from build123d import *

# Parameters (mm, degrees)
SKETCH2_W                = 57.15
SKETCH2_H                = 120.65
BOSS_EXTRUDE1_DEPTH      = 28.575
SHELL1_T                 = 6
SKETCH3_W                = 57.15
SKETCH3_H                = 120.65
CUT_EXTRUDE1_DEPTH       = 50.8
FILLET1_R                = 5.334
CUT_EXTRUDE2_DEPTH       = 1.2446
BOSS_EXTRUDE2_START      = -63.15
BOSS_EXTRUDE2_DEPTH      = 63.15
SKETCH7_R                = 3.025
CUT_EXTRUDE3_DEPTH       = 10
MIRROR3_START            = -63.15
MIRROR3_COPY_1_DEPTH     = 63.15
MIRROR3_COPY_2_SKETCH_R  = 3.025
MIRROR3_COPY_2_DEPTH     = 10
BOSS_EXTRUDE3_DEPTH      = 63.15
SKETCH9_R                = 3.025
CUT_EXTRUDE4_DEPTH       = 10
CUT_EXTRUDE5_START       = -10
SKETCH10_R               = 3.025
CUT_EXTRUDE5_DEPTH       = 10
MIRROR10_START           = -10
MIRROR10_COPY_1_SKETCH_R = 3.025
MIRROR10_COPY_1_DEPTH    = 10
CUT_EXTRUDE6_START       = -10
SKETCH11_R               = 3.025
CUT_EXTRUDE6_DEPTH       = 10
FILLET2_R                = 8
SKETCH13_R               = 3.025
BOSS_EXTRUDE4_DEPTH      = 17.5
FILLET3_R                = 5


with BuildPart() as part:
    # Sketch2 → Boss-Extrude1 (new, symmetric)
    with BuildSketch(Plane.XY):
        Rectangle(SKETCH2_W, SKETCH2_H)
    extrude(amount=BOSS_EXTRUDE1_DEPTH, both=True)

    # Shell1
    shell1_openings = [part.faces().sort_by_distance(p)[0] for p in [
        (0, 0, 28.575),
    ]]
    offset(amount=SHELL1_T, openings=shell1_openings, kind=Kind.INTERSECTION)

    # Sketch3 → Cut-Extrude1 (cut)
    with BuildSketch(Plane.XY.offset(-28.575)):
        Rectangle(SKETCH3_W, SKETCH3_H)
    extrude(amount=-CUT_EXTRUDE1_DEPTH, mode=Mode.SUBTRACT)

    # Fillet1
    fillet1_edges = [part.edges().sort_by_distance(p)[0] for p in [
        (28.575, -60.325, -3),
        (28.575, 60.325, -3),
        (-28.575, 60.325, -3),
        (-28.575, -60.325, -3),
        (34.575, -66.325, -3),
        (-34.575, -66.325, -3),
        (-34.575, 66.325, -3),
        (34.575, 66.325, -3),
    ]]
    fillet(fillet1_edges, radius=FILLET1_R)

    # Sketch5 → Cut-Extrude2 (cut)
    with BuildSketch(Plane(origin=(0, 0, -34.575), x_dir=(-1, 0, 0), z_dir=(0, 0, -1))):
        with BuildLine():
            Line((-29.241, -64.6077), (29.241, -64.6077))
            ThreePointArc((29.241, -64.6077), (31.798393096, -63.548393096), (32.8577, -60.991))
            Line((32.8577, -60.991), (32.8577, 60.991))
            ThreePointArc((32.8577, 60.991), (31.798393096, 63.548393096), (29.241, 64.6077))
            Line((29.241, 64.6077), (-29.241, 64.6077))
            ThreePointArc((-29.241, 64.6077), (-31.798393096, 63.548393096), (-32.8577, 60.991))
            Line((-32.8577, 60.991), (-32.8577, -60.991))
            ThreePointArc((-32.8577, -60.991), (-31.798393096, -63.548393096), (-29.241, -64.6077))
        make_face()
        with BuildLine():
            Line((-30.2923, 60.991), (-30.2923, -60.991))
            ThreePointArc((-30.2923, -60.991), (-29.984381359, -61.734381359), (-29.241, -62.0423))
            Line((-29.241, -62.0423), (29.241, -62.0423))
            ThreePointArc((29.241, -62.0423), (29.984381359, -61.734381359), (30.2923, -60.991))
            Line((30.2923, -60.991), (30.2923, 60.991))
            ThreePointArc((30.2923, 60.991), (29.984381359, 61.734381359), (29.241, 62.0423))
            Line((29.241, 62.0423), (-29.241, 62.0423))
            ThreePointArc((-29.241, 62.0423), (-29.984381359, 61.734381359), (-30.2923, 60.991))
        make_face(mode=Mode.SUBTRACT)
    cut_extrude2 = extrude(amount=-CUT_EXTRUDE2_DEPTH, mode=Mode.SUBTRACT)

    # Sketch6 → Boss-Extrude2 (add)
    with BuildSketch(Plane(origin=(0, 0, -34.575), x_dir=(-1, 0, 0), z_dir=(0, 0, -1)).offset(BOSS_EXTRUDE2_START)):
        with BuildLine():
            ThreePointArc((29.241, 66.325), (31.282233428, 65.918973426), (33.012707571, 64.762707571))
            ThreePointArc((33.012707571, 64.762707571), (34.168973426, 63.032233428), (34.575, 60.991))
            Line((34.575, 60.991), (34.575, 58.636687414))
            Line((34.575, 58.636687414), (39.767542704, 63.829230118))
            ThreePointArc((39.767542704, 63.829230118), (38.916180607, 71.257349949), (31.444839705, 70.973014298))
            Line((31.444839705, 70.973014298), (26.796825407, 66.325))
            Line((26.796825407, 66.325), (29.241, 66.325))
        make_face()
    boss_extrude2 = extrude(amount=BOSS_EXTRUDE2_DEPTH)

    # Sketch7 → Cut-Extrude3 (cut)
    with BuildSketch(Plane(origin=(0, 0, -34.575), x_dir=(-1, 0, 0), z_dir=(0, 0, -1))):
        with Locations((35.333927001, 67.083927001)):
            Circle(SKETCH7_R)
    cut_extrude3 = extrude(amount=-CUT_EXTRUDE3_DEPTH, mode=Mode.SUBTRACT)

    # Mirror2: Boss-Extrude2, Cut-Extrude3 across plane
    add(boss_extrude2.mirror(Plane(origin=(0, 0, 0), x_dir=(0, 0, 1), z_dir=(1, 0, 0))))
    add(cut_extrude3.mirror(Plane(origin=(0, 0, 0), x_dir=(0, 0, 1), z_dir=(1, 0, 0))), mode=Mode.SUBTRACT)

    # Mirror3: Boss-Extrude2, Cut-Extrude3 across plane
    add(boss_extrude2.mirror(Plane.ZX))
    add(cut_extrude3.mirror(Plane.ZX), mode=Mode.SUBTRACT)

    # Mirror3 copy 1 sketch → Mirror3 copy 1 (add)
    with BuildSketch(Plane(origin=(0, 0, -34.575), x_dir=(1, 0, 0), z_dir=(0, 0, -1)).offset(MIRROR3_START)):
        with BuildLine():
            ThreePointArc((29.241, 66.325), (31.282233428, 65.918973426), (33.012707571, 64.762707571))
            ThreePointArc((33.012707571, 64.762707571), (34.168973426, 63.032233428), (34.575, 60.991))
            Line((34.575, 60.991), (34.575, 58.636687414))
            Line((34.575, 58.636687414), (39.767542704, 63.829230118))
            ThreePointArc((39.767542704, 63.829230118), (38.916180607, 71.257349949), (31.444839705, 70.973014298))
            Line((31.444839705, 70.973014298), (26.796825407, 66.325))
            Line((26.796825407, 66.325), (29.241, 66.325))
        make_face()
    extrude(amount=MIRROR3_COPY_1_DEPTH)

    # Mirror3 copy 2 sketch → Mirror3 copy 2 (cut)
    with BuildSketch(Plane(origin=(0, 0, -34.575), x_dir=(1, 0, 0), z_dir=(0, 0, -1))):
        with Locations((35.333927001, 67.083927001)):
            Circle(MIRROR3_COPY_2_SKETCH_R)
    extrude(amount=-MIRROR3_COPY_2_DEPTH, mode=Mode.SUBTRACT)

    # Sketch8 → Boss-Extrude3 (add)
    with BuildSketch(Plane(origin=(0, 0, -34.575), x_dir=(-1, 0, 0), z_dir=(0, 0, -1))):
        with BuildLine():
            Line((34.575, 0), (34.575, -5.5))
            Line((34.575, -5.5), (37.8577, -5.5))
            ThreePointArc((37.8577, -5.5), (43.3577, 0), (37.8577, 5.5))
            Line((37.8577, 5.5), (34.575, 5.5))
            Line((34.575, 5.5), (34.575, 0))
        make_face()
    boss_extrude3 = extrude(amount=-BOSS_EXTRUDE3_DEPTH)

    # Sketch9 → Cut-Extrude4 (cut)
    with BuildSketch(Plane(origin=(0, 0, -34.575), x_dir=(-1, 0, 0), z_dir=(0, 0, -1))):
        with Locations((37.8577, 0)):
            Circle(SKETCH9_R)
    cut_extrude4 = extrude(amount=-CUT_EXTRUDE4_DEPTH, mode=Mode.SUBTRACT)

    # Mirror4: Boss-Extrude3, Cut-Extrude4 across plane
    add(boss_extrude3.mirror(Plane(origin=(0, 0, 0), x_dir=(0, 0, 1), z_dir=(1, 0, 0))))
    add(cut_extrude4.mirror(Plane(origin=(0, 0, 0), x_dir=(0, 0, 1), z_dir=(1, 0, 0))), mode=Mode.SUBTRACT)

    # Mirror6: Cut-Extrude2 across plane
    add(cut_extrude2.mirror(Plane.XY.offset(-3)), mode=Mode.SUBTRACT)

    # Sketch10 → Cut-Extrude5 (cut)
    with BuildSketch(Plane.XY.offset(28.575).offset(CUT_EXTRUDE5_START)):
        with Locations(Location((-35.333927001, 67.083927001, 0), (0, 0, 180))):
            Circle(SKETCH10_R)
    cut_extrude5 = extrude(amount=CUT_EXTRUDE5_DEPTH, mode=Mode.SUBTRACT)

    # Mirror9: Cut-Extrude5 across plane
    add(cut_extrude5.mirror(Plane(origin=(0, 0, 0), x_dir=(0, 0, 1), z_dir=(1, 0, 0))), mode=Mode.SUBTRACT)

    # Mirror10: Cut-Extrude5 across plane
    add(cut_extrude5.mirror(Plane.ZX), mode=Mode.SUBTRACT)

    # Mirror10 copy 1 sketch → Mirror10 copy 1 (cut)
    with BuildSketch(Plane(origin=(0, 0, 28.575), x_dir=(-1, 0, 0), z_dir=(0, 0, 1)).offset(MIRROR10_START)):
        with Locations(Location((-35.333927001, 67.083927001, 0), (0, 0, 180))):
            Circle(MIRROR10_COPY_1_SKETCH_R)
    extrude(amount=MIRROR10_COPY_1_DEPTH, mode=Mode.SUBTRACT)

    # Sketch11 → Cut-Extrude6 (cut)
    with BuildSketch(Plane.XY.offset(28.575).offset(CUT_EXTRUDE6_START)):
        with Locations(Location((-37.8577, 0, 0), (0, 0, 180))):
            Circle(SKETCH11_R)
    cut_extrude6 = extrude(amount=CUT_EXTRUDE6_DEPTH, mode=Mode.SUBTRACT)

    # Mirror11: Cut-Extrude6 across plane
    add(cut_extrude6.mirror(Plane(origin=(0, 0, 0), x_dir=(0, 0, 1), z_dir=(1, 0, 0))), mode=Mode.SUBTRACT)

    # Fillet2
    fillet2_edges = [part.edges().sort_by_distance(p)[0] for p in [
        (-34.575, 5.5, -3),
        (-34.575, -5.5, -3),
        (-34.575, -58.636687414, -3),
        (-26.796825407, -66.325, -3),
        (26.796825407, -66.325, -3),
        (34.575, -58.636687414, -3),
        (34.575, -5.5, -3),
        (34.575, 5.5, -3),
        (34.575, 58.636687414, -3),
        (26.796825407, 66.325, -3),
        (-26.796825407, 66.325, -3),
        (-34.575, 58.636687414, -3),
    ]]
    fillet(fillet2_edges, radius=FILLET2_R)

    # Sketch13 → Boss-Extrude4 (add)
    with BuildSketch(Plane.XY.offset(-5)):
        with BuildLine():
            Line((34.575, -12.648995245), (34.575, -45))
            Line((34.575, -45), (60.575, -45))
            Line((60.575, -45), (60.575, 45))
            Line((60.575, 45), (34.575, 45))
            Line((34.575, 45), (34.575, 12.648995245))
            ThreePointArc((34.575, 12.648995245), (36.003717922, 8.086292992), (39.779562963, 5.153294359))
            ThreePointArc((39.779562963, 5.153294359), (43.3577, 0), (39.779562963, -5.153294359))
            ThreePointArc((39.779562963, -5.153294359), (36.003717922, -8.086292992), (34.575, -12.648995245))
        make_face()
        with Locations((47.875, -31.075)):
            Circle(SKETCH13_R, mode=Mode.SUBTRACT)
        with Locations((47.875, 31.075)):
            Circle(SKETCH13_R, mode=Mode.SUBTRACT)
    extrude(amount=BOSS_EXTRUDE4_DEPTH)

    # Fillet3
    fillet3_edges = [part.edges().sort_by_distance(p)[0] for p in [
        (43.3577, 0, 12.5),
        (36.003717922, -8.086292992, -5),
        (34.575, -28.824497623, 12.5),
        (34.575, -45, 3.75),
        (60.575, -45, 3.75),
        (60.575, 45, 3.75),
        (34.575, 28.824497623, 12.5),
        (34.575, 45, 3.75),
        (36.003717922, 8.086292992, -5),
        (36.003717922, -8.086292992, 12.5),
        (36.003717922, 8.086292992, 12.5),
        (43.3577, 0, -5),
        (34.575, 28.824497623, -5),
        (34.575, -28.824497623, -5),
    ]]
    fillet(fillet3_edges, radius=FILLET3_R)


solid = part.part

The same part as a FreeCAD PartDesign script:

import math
import FreeCAD as App
import Part
import Sketcher

V = App.Vector
Q = App.Units.Quantity


def edges_at(feature, points):
    """Names of the edges that pass closest to the given points."""
    edges = feature.Shape.Edges
    near = lambda p: min(range(len(edges)), key=lambda i: edges[i].distToShape(Part.Vertex(*p))[0])
    return sorted({f"Edge{near(p) + 1}" for p in points})


def faces_at(feature, points):
    """Names of the faces that lie closest to the given points."""
    faces = feature.Shape.Faces
    near = lambda p: min(range(len(faces)), key=lambda i: faces[i].distToShape(Part.Vertex(*p))[0])
    return sorted({f"Face{near(p) + 1}" for p in points})

doc = App.newDocument("Part")
body = doc.addObject("PartDesign::Body", "Body")

# Sketch on XY plane
sketch1 = body.newObject("Sketcher::SketchObject", "Sketch")
sketch1.AttachmentSupport = (doc.getObject("XY_Plane"), [""])
sketch1.MapMode = "FlatFace"
sketch1.addGeometry(Part.LineSegment(V(-29, 60, 0), V(-29, -60, 0)), False)
sketch1.addGeometry(Part.LineSegment(V(-29, -60, 0), V(29, -60, 0)), False)
sketch1.addGeometry(Part.LineSegment(V(29, -60, 0), V(29, 60, 0)), False)
sketch1.addGeometry(Part.LineSegment(V(29, 60, 0), V(-29, 60, 0)), False)
sketch1.addConstraint(Sketcher.Constraint("Coincident", 0, 2, 1, 1))
sketch1.addConstraint(Sketcher.Constraint("Coincident", 1, 2, 2, 1))
sketch1.addConstraint(Sketcher.Constraint("Coincident", 2, 2, 3, 1))
sketch1.addConstraint(Sketcher.Constraint("Coincident", 3, 2, 0, 1))
sketch1.addConstraint(Sketcher.Constraint("Vertical", 0))
sketch1.addConstraint(Sketcher.Constraint("Horizontal", 1))
sketch1.addConstraint(Sketcher.Constraint("Vertical", 2))
sketch1.addConstraint(Sketcher.Constraint("Horizontal", 3))
sketch1.addConstraint(Sketcher.Constraint("Symmetric", 0, 2, 2, 2, -1, 1))
sketch1.addConstraint(Sketcher.Constraint("DistanceX", 1, 1, 1, 2, Q("57.15 mm")))
sketch1.addConstraint(Sketcher.Constraint("DistanceY", 0, 2, 0, 1, Q("120.65 mm")))
pad1 = body.newObject("PartDesign::Pad", "Pad")
pad1.Profile = sketch1
pad1.Length = 57.15
pad1.Midplane = True
doc.recompute()

thickness = body.newObject("PartDesign::Thickness", "Thickness")
thickness.Base = (pad1, faces_at(pad1, [(0, 0, 28.575)]))
thickness.Value = 6
thickness.Reversed = False
thickness.Join = "Intersection"

# Sketch on XY plane
sketch2 = body.newObject("Sketcher::SketchObject", "Sketch001")
sketch2.AttachmentSupport = (doc.getObject("XY_Plane"), [""])
sketch2.MapMode = "FlatFace"
sketch2.AttachmentOffset = App.Placement(V(0, 0, -28.575), App.Rotation())
sketch2.addGeometry(Part.LineSegment(V(-29, 60, 0), V(-29, -60, 0)), False)
sketch2.addGeometry(Part.LineSegment(V(-29, -60, 0), V(29, -60, 0)), False)
sketch2.addGeometry(Part.LineSegment(V(29, -60, 0), V(29, 60, 0)), False)
sketch2.addGeometry(Part.LineSegment(V(29, 60, 0), V(-29, 60, 0)), False)
sketch2.addConstraint(Sketcher.Constraint("Coincident", 0, 2, 1, 1))
sketch2.addConstraint(Sketcher.Constraint("Coincident", 1, 2, 2, 1))
sketch2.addConstraint(Sketcher.Constraint("Coincident", 2, 2, 3, 1))
sketch2.addConstraint(Sketcher.Constraint("Coincident", 3, 2, 0, 1))
sketch2.addConstraint(Sketcher.Constraint("Vertical", 0))
sketch2.addConstraint(Sketcher.Constraint("Horizontal", 1))
sketch2.addConstraint(Sketcher.Constraint("Vertical", 2))
sketch2.addConstraint(Sketcher.Constraint("Horizontal", 3))
sketch2.addConstraint(Sketcher.Constraint("Symmetric", 0, 2, 2, 2, -1, 1))
sketch2.addConstraint(Sketcher.Constraint("DistanceX", 1, 1, 1, 2, Q("57.15 mm")))
sketch2.addConstraint(Sketcher.Constraint("DistanceY", 0, 2, 0, 1, Q("120.65 mm")))
pocket1 = body.newObject("PartDesign::Pocket", "Pocket")
pocket1.Profile = sketch2
pocket1.Length = 50.8
doc.recompute()

fillet = body.newObject("PartDesign::Fillet", "Fillet")
fillet.Base = (pocket1, edges_at(pocket1, [
    (28.575, -60.325, -3),
    (28.575, 60.325, -3),
    (-28.575, 60.325, -3),
    (-28.575, -60.325, -3),
    (34.575, -66.325, -3),
    (-34.575, -66.325, -3),
    (-34.575, 66.325, -3),
    (34.575, 66.325, -3),
]))
fillet.Radius = 5.334

# Sketch on XY plane
sketch3 = body.newObject("Sketcher::SketchObject", "Sketch002")
sketch3.AttachmentSupport = (doc.getObject("XY_Plane"), [""])
sketch3.MapMode = "FlatFace"
sketch3.AttachmentOffset = App.Placement(V(0, 0, -34.575), App.Rotation())
sketch3.addGeometry(Part.LineSegment(V(29.2, -64.6, 0), V(-29.2, -64.6, 0)), False)
sketch3.addGeometry(Part.ArcOfCircle(Part.Circle(V(-29.2, -61, 0), V(0, 0, 1), 3.6), math.radians(180), math.radians(270)), False)
sketch3.addGeometry(Part.LineSegment(V(-32.9, -61, 0), V(-32.9, 61, 0)), False)
sketch3.addGeometry(Part.ArcOfCircle(Part.Circle(V(-29.2, 61, 0), V(0, 0, 1), 3.6), math.radians(90), math.radians(180)), False)
sketch3.addGeometry(Part.LineSegment(V(-29.2, 64.6, 0), V(29.2, 64.6, 0)), False)
sketch3.addGeometry(Part.ArcOfCircle(Part.Circle(V(29.2, 61, 0), V(0, 0, 1), 3.6), math.radians(0), math.radians(90)), False)
sketch3.addGeometry(Part.LineSegment(V(32.9, 61, 0), V(32.9, -61, 0)), False)
sketch3.addGeometry(Part.ArcOfCircle(Part.Circle(V(29.2, -61, 0), V(0, 0, 1), 3.6), math.radians(-90), math.radians(0)), False)
sketch3.addGeometry(Part.LineSegment(V(30.3, -61, 0), V(30.3, 61, 0)), False)
sketch3.addGeometry(Part.ArcOfCircle(Part.Circle(V(29.2, 61, 0), V(0, 0, 1), 1.1), math.radians(0), math.radians(90)), False)
sketch3.addGeometry(Part.LineSegment(V(29.2, 62, 0), V(-29.2, 62, 0)), False)
sketch3.addGeometry(Part.ArcOfCircle(Part.Circle(V(-29.2, 61, 0), V(0, 0, 1), 1.1), math.radians(90), math.radians(180)), False)
sketch3.addGeometry(Part.LineSegment(V(-30.3, 61, 0), V(-30.3, -61, 0)), False)
sketch3.addGeometry(Part.ArcOfCircle(Part.Circle(V(-29.2, -61, 0), V(0, 0, 1), 1.1), math.radians(180), math.radians(270)), False)
sketch3.addGeometry(Part.LineSegment(V(-29.2, -62, 0), V(29.2, -62, 0)), False)
sketch3.addGeometry(Part.ArcOfCircle(Part.Circle(V(29.2, -61, 0), V(0, 0, 1), 1.1), math.radians(-90), math.radians(0)), False)
sketch3.addConstraint(Sketcher.Constraint("Tangent", 0, 2, 1, 2))
sketch3.addConstraint(Sketcher.Constraint("Tangent", 1, 1, 2, 1))
sketch3.addConstraint(Sketcher.Constraint("Tangent", 2, 2, 3, 2))
sketch3.addConstraint(Sketcher.Constraint("Tangent", 3, 1, 4, 1))
sketch3.addConstraint(Sketcher.Constraint("Tangent", 4, 2, 5, 2))
sketch3.addConstraint(Sketcher.Constraint("Tangent", 5, 1, 6, 1))
sketch3.addConstraint(Sketcher.Constraint("Tangent", 6, 2, 7, 2))
sketch3.addConstraint(Sketcher.Constraint("Tangent", 7, 1, 0, 1))
sketch3.addConstraint(Sketcher.Constraint("Tangent", 8, 2, 9, 1))
sketch3.addConstraint(Sketcher.Constraint("Tangent", 9, 2, 10, 1))
sketch3.addConstraint(Sketcher.Constraint("Tangent", 10, 2, 11, 1))
sketch3.addConstraint(Sketcher.Constraint("Tangent", 11, 2, 12, 1))
sketch3.addConstraint(Sketcher.Constraint("Tangent", 12, 2, 13, 1))
sketch3.addConstraint(Sketcher.Constraint("Tangent", 13, 2, 14, 1))
sketch3.addConstraint(Sketcher.Constraint("Tangent", 14, 2, 15, 1))
sketch3.addConstraint(Sketcher.Constraint("Tangent", 15, 2, 8, 1))
sketch3.addConstraint(Sketcher.Constraint("Horizontal", 0))
sketch3.addConstraint(Sketcher.Constraint("Vertical", 2))
sketch3.addConstraint(Sketcher.Constraint("Horizontal", 4))
sketch3.addConstraint(Sketcher.Constraint("Vertical", 6))
sketch3.addConstraint(Sketcher.Constraint("Vertical", 8))
sketch3.addConstraint(Sketcher.Constraint("Horizontal", 10))
sketch3.addConstraint(Sketcher.Constraint("Vertical", 12))
sketch3.addConstraint(Sketcher.Constraint("Horizontal", 14))
sketch3.addConstraint(Sketcher.Constraint("Coincident", 9, 3, 5, 3))
sketch3.addConstraint(Sketcher.Constraint("Coincident", 11, 3, 3, 3))
sketch3.addConstraint(Sketcher.Constraint("Coincident", 13, 3, 1, 3))
sketch3.addConstraint(Sketcher.Constraint("Equal", 1, 3))
sketch3.addConstraint(Sketcher.Constraint("Equal", 3, 5))
sketch3.addConstraint(Sketcher.Constraint("Equal", 5, 7))
sketch3.addConstraint(Sketcher.Constraint("Equal", 13, 15))
sketch3.addConstraint(Sketcher.Constraint("Symmetric", 1, 3, 5, 3, -1, 1))
sketch3.addConstraint(Sketcher.Constraint("Radius", 1, Q("3.6167 mm")))
sketch3.addConstraint(Sketcher.Constraint("Radius", 9, Q("1.0513 mm")))
sketch3.addConstraint(Sketcher.Constraint("DistanceX", 0, 2, 0, 1, Q("58.482 mm")))
sketch3.addConstraint(Sketcher.Constraint("DistanceY", 2, 1, 2, 2, Q("121.982 mm")))
pocket2 = body.newObject("PartDesign::Pocket", "Pocket001")
pocket2.Profile = sketch3
pocket2.Length = 1.2446
pocket2.Reversed = True

# Sketch on XY plane
sketch4 = body.newObject("Sketcher::SketchObject", "Sketch003")
sketch4.AttachmentSupport = (doc.getObject("XY_Plane"), [""])
sketch4.MapMode = "FlatFace"
sketch4.AttachmentOffset = App.Placement(V(0, 0, 28.575), App.Rotation())
sketch4.addGeometry(Part.ArcOfCircle(Part.Circle(V(-29.2, 61, 0), V(0, 0, 1), 5.3), math.radians(90), math.radians(135)), False)
sketch4.addGeometry(Part.ArcOfCircle(Part.Circle(V(-29.2, 61, 0), V(0, 0, 1), 5.3), math.radians(135), math.radians(180)), False)
sketch4.addGeometry(Part.LineSegment(V(-34.6, 61, 0), V(-34.6, 58.6, 0)), False)
sketch4.addGeometry(Part.LineSegment(V(-34.6, 58.6, 0), V(-39.8, 63.8, 0)), False)
sketch4.addGeometry(Part.ArcOfCircle(Part.Circle(V(-35.3, 67.1, 0), V(0, 0, 1), 5.5), math.radians(45), math.radians(216)), False)
sketch4.addGeometry(Part.LineSegment(V(-31.4, 71, 0), V(-26.8, 66.3, 0)), False)
sketch4.addGeometry(Part.LineSegment(V(-26.8, 66.3, 0), V(-29.2, 66.3, 0)), False)
sketch4.addConstraint(Sketcher.Constraint("Tangent", 0, 2, 1, 1))
sketch4.addConstraint(Sketcher.Constraint("Tangent", 1, 2, 2, 1))
sketch4.addConstraint(Sketcher.Constraint("Coincident", 2, 2, 3, 1))
sketch4.addConstraint(Sketcher.Constraint("Coincident", 3, 2, 4, 2))
sketch4.addConstraint(Sketcher.Constraint("Tangent", 4, 1, 5, 1))
sketch4.addConstraint(Sketcher.Constraint("Coincident", 5, 2, 6, 1))
sketch4.addConstraint(Sketcher.Constraint("Tangent", 6, 2, 0, 1))
sketch4.addConstraint(Sketcher.Constraint("Vertical", 2))
sketch4.addConstraint(Sketcher.Constraint("Horizontal", 6))
sketch4.addConstraint(Sketcher.Constraint("Equal", 0, 1))
sketch4.addConstraint(Sketcher.Constraint("Parallel", 3, 5))
sketch4.addConstraint(Sketcher.Constraint("Radius", 4, Q("5.5 mm")))
sketch4.addConstraint(Sketcher.Constraint("Angle", 3, Q("135 deg")))
sketch4.addConstraint(Sketcher.Constraint("Radius", 0, Q("5.334 mm")))
sketch4.addConstraint(Sketcher.Constraint("DistanceX", 0, 3, -1, 1, Q("29.241 mm")))
sketch4.addConstraint(Sketcher.Constraint("DistanceY", -1, 1, 0, 3, Q("60.991 mm")))
sketch4.addConstraint(Sketcher.Constraint("DistanceX", 4, 3, 5, 2, Q("8.537102 mm")))
sketch4.addConstraint(Sketcher.Constraint("DistanceX", 6, 2, 6, 1, Q("2.444175 mm")))
sketch4.addConstraint(Sketcher.Constraint("DistanceY", 2, 2, 2, 1, Q("2.354313 mm")))
sketch4.addConstraint(Sketcher.Constraint("DistanceX", 4, 3, 0, 2, Q("2.321219 mm")))
pad2 = body.newObject("PartDesign::Pad", "Pad001")
pad2.Profile = sketch4
pad2.Length = 63.15
pad2.Reversed = True

# Sketch on XY plane
sketch5 = body.newObject("Sketcher::SketchObject", "Sketch004")
sketch5.AttachmentSupport = (doc.getObject("XY_Plane"), [""])
sketch5.MapMode = "FlatFace"
sketch5.AttachmentOffset = App.Placement(V(0, 0, -34.575), App.Rotation())
sketch5.addGeometry(Part.Circle(V(-35.3, 67.1, 0), V(0, 0, 1), 3), False)
sketch5.addConstraint(Sketcher.Constraint("Diameter", 0, Q("6.05 mm")))
sketch5.addConstraint(Sketcher.Constraint("DistanceX", 0, 3, -1, 1, Q("35.333927 mm")))
sketch5.addConstraint(Sketcher.Constraint("DistanceY", -1, 1, 0, 3, Q("67.083927 mm")))
pocket3 = body.newObject("PartDesign::Pocket", "Pocket002")
pocket3.Profile = sketch5
pocket3.Length = 10
pocket3.Reversed = True
doc.recompute()

mirrored = body.newObject("PartDesign::Mirrored", "Mirrored")
mirrored.Originals = [pad2, pocket3]
mirrored.MirrorPlane = (doc.getObject("YZ_Plane"), [""])
body.Tip = mirrored
doc.recompute()

mirrored2 = body.newObject("PartDesign::Mirrored", "Mirrored001")
mirrored2.Originals = [pad2, pocket3]
mirrored2.MirrorPlane = (doc.getObject("XZ_Plane"), [""])
body.Tip = mirrored2

# Sketch on XY plane
sketch6 = body.newObject("Sketcher::SketchObject", "Sketch005")
sketch6.AttachmentSupport = (doc.getObject("XY_Plane"), [""])
sketch6.MapMode = "FlatFace"
sketch6.AttachmentOffset = App.Placement(V(0, 0, 28.575), App.Rotation())
sketch6.addGeometry(Part.ArcOfCircle(Part.Circle(V(29.2, -61, 0), V(0, 0, 1), 5.3), math.radians(-90), math.radians(-45)), False)
sketch6.addGeometry(Part.ArcOfCircle(Part.Circle(V(29.2, -61, 0), V(0, 0, 1), 5.3), math.radians(-45), math.radians(0)), False)
sketch6.addGeometry(Part.LineSegment(V(34.6, -61, 0), V(34.6, -58.6, 0)), False)
sketch6.addGeometry(Part.LineSegment(V(34.6, -58.6, 0), V(39.8, -63.8, 0)), False)
sketch6.addGeometry(Part.ArcOfCircle(Part.Circle(V(35.3, -67.1, 0), V(0, 0, 1), 5.5), math.radians(-135), math.radians(36)), False)
sketch6.addGeometry(Part.LineSegment(V(31.4, -71, 0), V(26.8, -66.3, 0)), False)
sketch6.addGeometry(Part.LineSegment(V(26.8, -66.3, 0), V(29.2, -66.3, 0)), False)
sketch6.addConstraint(Sketcher.Constraint("Tangent", 0, 2, 1, 1))
sketch6.addConstraint(Sketcher.Constraint("Tangent", 1, 2, 2, 1))
sketch6.addConstraint(Sketcher.Constraint("Coincident", 2, 2, 3, 1))
sketch6.addConstraint(Sketcher.Constraint("Coincident", 3, 2, 4, 2))
sketch6.addConstraint(Sketcher.Constraint("Tangent", 4, 1, 5, 1))
sketch6.addConstraint(Sketcher.Constraint("Coincident", 5, 2, 6, 1))
sketch6.addConstraint(Sketcher.Constraint("Tangent", 6, 2, 0, 1))
sketch6.addConstraint(Sketcher.Constraint("Vertical", 2))
sketch6.addConstraint(Sketcher.Constraint("Horizontal", 6))
sketch6.addConstraint(Sketcher.Constraint("Equal", 0, 1))
sketch6.addConstraint(Sketcher.Constraint("Parallel", 3, 5))
sketch6.addConstraint(Sketcher.Constraint("Radius", 4, Q("5.5 mm")))
sketch6.addConstraint(Sketcher.Constraint("Angle", 3, Q("-45 deg")))
sketch6.addConstraint(Sketcher.Constraint("Radius", 0, Q("5.334 mm")))
sketch6.addConstraint(Sketcher.Constraint("DistanceX", -1, 1, 0, 3, Q("29.241 mm")))
sketch6.addConstraint(Sketcher.Constraint("DistanceY", 0, 3, -1, 1, Q("60.991 mm")))
sketch6.addConstraint(Sketcher.Constraint("DistanceX", 5, 2, 4, 3, Q("8.537102 mm")))
sketch6.addConstraint(Sketcher.Constraint("DistanceX", 6, 1, 6, 2, Q("2.444175 mm")))
sketch6.addConstraint(Sketcher.Constraint("DistanceY", 2, 1, 2, 2, Q("2.354313 mm")))
sketch6.addConstraint(Sketcher.Constraint("DistanceX", 0, 2, 4, 3, Q("2.321219 mm")))
pad3 = body.newObject("PartDesign::Pad", "Pad002")
pad3.Profile = sketch6
pad3.Length = 63.15
pad3.Reversed = True

# Sketch on XY plane
sketch7 = body.newObject("Sketcher::SketchObject", "Sketch006")
sketch7.AttachmentSupport = (doc.getObject("XY_Plane"), [""])
sketch7.MapMode = "FlatFace"
sketch7.AttachmentOffset = App.Placement(V(0, 0, -34.575), App.Rotation())
sketch7.addGeometry(Part.Circle(V(35.3, -67.1, 0), V(0, 0, 1), 3), False)
sketch7.addConstraint(Sketcher.Constraint("Diameter", 0, Q("6.05 mm")))
sketch7.addConstraint(Sketcher.Constraint("DistanceX", -1, 1, 0, 3, Q("35.333927 mm")))
sketch7.addConstraint(Sketcher.Constraint("DistanceY", 0, 3, -1, 1, Q("67.083927 mm")))
pocket4 = body.newObject("PartDesign::Pocket", "Pocket003")
pocket4.Profile = sketch7
pocket4.Length = 10
pocket4.Reversed = True

# Sketch on XY plane
sketch8 = body.newObject("Sketcher::SketchObject", "Sketch007")
sketch8.AttachmentSupport = (doc.getObject("XY_Plane"), [""])
sketch8.MapMode = "FlatFace"
sketch8.AttachmentOffset = App.Placement(V(0, 0, -34.575), App.Rotation())
sketch8.addGeometry(Part.LineSegment(V(-34.6, -5.5, 0), V(-37.9, -5.5, 0)), False)
sketch8.addGeometry(Part.ArcOfCircle(Part.Circle(V(-37.9, 0, 0), V(0, 0, 1), 5.5), math.radians(90), math.radians(270)), False)
sketch8.addGeometry(Part.LineSegment(V(-37.9, 5.5, 0), V(-34.6, 5.5, 0)), False)
sketch8.addGeometry(Part.LineSegment(V(-34.6, 5.5, 0), V(-34.6, -5.5, 0)), False)
sketch8.addConstraint(Sketcher.Constraint("Tangent", 0, 2, 1, 2))
sketch8.addConstraint(Sketcher.Constraint("Tangent", 1, 1, 2, 1))
sketch8.addConstraint(Sketcher.Constraint("Coincident", 2, 2, 3, 1))
sketch8.addConstraint(Sketcher.Constraint("Coincident", 3, 2, 0, 1))
sketch8.addConstraint(Sketcher.Constraint("Horizontal", 0))
sketch8.addConstraint(Sketcher.Constraint("Horizontal", 2))
sketch8.addConstraint(Sketcher.Constraint("Vertical", 3))
sketch8.addConstraint(Sketcher.Constraint("PointOnObject", 1, 3, -1))
sketch8.addConstraint(Sketcher.Constraint("Radius", 1, Q("5.5 mm")))
sketch8.addConstraint(Sketcher.Constraint("DistanceX", 0, 2, 0, 1, Q("3.2827 mm")))
sketch8.addConstraint(Sketcher.Constraint("DistanceX", 2, 2, -1, 1, Q("34.575 mm")))
pad4 = body.newObject("PartDesign::Pad", "Pad003")
pad4.Profile = sketch8
pad4.Length = 63.15

# Sketch on XY plane
sketch9 = body.newObject("Sketcher::SketchObject", "Sketch008")
sketch9.AttachmentSupport = (doc.getObject("XY_Plane"), [""])
sketch9.MapMode = "FlatFace"
sketch9.AttachmentOffset = App.Placement(V(0, 0, -34.575), App.Rotation())
sketch9.addGeometry(Part.Circle(V(-37.9, 0, 0), V(0, 0, 1), 3), False)
sketch9.addConstraint(Sketcher.Constraint("PointOnObject", 0, 3, -1))
sketch9.addConstraint(Sketcher.Constraint("Diameter", 0, Q("6.05 mm")))
sketch9.addConstraint(Sketcher.Constraint("DistanceX", 0, 3, -1, 1, Q("37.8577 mm")))
pocket5 = body.newObject("PartDesign::Pocket", "Pocket004")
pocket5.Profile = sketch9
pocket5.Length = 10
pocket5.Reversed = True
doc.recompute()

mirrored3 = body.newObject("PartDesign::Mirrored", "Mirrored002")
mirrored3.Originals = [pad4, pocket5]
mirrored3.MirrorPlane = (doc.getObject("YZ_Plane"), [""])
body.Tip = mirrored3
doc.recompute()

datumplane = body.newObject("PartDesign::Plane", "DatumPlane")
datumplane.AttachmentSupport = (doc.getObject("XY_Plane"), [""])
datumplane.MapMode = "FlatFace"
datumplane.AttachmentOffset = App.Placement(V(0, 0, -3), App.Rotation())
mirrored4 = body.newObject("PartDesign::Mirrored", "Mirrored003")
mirrored4.Originals = [pocket2]
mirrored4.MirrorPlane = (datumplane, [""])
body.Tip = mirrored4

# Sketch on XY plane
sketch10 = body.newObject("Sketcher::SketchObject", "Sketch009")
sketch10.AttachmentSupport = (doc.getObject("XY_Plane"), [""])
sketch10.MapMode = "FlatFace"
sketch10.AttachmentOffset = App.Placement(V(0, 0, 18.575), App.Rotation())
sketch10.addGeometry(Part.Circle(V(-35.3, 67.1, 0), V(0, 0, 1), 3), False)
sketch10.addConstraint(Sketcher.Constraint("Diameter", 0, Q("6.05 mm")))
sketch10.addConstraint(Sketcher.Constraint("DistanceX", 0, 3, -1, 1, Q("35.333927 mm")))
sketch10.addConstraint(Sketcher.Constraint("DistanceY", -1, 1, 0, 3, Q("67.083927 mm")))
pocket6 = body.newObject("PartDesign::Pocket", "Pocket005")
pocket6.Profile = sketch10
pocket6.Length = 10
pocket6.Reversed = True
doc.recompute()

mirrored5 = body.newObject("PartDesign::Mirrored", "Mirrored004")
mirrored5.Originals = [pocket6]
mirrored5.MirrorPlane = (doc.getObject("YZ_Plane"), [""])
body.Tip = mirrored5
doc.recompute()

mirrored6 = body.newObject("PartDesign::Mirrored", "Mirrored005")
mirrored6.Originals = [pocket6]
mirrored6.MirrorPlane = (doc.getObject("XZ_Plane"), [""])
body.Tip = mirrored6

# Sketch on XY plane
sketch11 = body.newObject("Sketcher::SketchObject", "Sketch010")
sketch11.AttachmentSupport = (doc.getObject("XY_Plane"), [""])
sketch11.MapMode = "FlatFace"
sketch11.AttachmentOffset = App.Placement(V(0, 0, 18.575), App.Rotation())
sketch11.addGeometry(Part.Circle(V(35.3, -67.1, 0), V(0, 0, 1), 3), False)
sketch11.addConstraint(Sketcher.Constraint("Diameter", 0, Q("6.05 mm")))
sketch11.addConstraint(Sketcher.Constraint("DistanceX", -1, 1, 0, 3, Q("35.333927 mm")))
sketch11.addConstraint(Sketcher.Constraint("DistanceY", 0, 3, -1, 1, Q("67.083927 mm")))
pocket7 = body.newObject("PartDesign::Pocket", "Pocket006")
pocket7.Profile = sketch11
pocket7.Length = 10
pocket7.Reversed = True

# Sketch on XY plane
sketch12 = body.newObject("Sketcher::SketchObject", "Sketch011")
sketch12.AttachmentSupport = (doc.getObject("XY_Plane"), [""])
sketch12.MapMode = "FlatFace"
sketch12.AttachmentOffset = App.Placement(V(0, 0, 18.575), App.Rotation())
sketch12.addGeometry(Part.Circle(V(-37.9, 0, 0), V(0, 0, 1), 3), False)
sketch12.addConstraint(Sketcher.Constraint("PointOnObject", 0, 3, -1))
sketch12.addConstraint(Sketcher.Constraint("Diameter", 0, Q("6.05 mm")))
sketch12.addConstraint(Sketcher.Constraint("DistanceX", 0, 3, -1, 1, Q("37.8577 mm")))
pocket8 = body.newObject("PartDesign::Pocket", "Pocket007")
pocket8.Profile = sketch12
pocket8.Length = 10
pocket8.Reversed = True
doc.recompute()

mirrored7 = body.newObject("PartDesign::Mirrored", "Mirrored006")
mirrored7.Originals = [pocket8]
mirrored7.MirrorPlane = (doc.getObject("YZ_Plane"), [""])
body.Tip = mirrored7
doc.recompute()

fillet2 = body.newObject("PartDesign::Fillet", "Fillet001")
fillet2.Base = (mirrored7, edges_at(mirrored7, [
    (-34.575, 5.5, -3),
    (-34.575, -5.5, -3),
    (-34.575, -58.637, -3),
    (-26.797, -66.325, -3),
    (26.797, -66.325, -3),
    (34.575, -58.637, -3),
    (34.575, -5.5, -3),
    (34.575, 5.5, -3),
    (34.575, 58.637, -3),
    (26.797, 66.325, -3),
    (-26.797, 66.325, -3),
    (-34.575, 58.637, -3),
]))
fillet2.Radius = 8

# Sketch on XY plane
sketch13 = body.newObject("Sketcher::SketchObject", "Sketch012")
sketch13.AttachmentSupport = (doc.getObject("XY_Plane"), [""])
sketch13.MapMode = "FlatFace"
sketch13.AttachmentOffset = App.Placement(V(0, 0, -5), App.Rotation())
sketch13.addGeometry(Part.LineSegment(V(34.6, -12.6, 0), V(34.6, -45, 0)), False)
sketch13.addGeometry(Part.LineSegment(V(34.6, -45, 0), V(60.6, -45, 0)), False)
sketch13.addGeometry(Part.LineSegment(V(60.6, -45, 0), V(60.6, 45, 0)), False)
sketch13.addGeometry(Part.LineSegment(V(60.6, 45, 0), V(34.6, 45, 0)), False)
sketch13.addGeometry(Part.LineSegment(V(34.6, 45, 0), V(34.6, 12.6, 0)), False)
sketch13.addGeometry(Part.ArcOfCircle(Part.Circle(V(42.6, 12.6, 0), V(0, 0, 1), 8), math.radians(180), math.radians(250)), False)
sketch13.addGeometry(Part.ArcOfCircle(Part.Circle(V(37.9, 0, 0), V(0, 0, 1), 5.5), math.radians(-70), math.radians(70)), False)
sketch13.addGeometry(Part.ArcOfCircle(Part.Circle(V(42.6, -12.6, 0), V(0, 0, 1), 8), math.radians(110), math.radians(180)), False)
sketch13.addGeometry(Part.Circle(V(47.9, -31.1, 0), V(0, 0, 1), 3), False)
sketch13.addGeometry(Part.Circle(V(47.9, 31.1, 0), V(0, 0, 1), 3), False)
sketch13.addConstraint(Sketcher.Constraint("Coincident", 0, 2, 1, 1))
sketch13.addConstraint(Sketcher.Constraint("Coincident", 1, 2, 2, 1))
sketch13.addConstraint(Sketcher.Constraint("Coincident", 2, 2, 3, 1))
sketch13.addConstraint(Sketcher.Constraint("Coincident", 3, 2, 4, 1))
sketch13.addConstraint(Sketcher.Constraint("Tangent", 4, 2, 5, 1))
sketch13.addConstraint(Sketcher.Constraint("Tangent", 5, 2, 6, 2))
sketch13.addConstraint(Sketcher.Constraint("Tangent", 6, 1, 7, 1))
sketch13.addConstraint(Sketcher.Constraint("Tangent", 7, 2, 0, 1))
sketch13.addConstraint(Sketcher.Constraint("Vertical", 0))
sketch13.addConstraint(Sketcher.Constraint("Horizontal", 1))
sketch13.addConstraint(Sketcher.Constraint("Vertical", 2))
sketch13.addConstraint(Sketcher.Constraint("Horizontal", 3))
sketch13.addConstraint(Sketcher.Constraint("Vertical", 4))
sketch13.addConstraint(Sketcher.Constraint("Equal", 5, 7))
sketch13.addConstraint(Sketcher.Constraint("Equal", 8, 9))
sketch13.addConstraint(Sketcher.Constraint("Symmetric", 5, 3, 7, 3, -1))
sketch13.addConstraint(Sketcher.Constraint("Symmetric", 8, 3, 9, 3, -1))
sketch13.addConstraint(Sketcher.Constraint("Equal", 0, 4))
sketch13.addConstraint(Sketcher.Constraint("Radius", 5, Q("8 mm")))
sketch13.addConstraint(Sketcher.Constraint("Radius", 6, Q("5.5 mm")))
sketch13.addConstraint(Sketcher.Constraint("Diameter", 8, Q("6.05 mm")))
sketch13.addConstraint(Sketcher.Constraint("DistanceX", 1, 1, 1, 2, Q("26 mm")))
sketch13.addConstraint(Sketcher.Constraint("DistanceY", 2, 1, 2, 2, Q("90 mm")))
sketch13.addConstraint(Sketcher.Constraint("DistanceX", 7, 3, 8, 3, Q("5.3 mm")))
sketch13.addConstraint(Sketcher.Constraint("DistanceY", 8, 3, 9, 3, Q("62.15 mm")))
sketch13.addConstraint(Sketcher.Constraint("DistanceX", -1, 1, 5, 3, Q("42.575 mm")))
sketch13.addConstraint(Sketcher.Constraint("DistanceX", -1, 1, 6, 3, Q("37.8577 mm")))
pad5 = body.newObject("PartDesign::Pad", "Pad004")
pad5.Profile = sketch13
pad5.Length = 17.5
doc.recompute()

fillet3 = body.newObject("PartDesign::Fillet", "Fillet002")
fillet3.Base = (pad5, edges_at(pad5, [
    (43.358, 0, 12.5),
    (36.004, -8.086, -5),
    (34.575, -28.824, 12.5),
    (34.575, -45, 3.75),
    (60.575, -45, 3.75),
    (60.575, 45, 3.75),
    (34.575, 28.824, 12.5),
    (34.575, 45, 3.75),
    (36.004, 8.086, -5),
    (36.004, -8.086, 12.5),
    (36.004, 8.086, 12.5),
    (43.358, 0, -5),
    (34.575, 28.824, -5),
    (34.575, -28.824, -5),
]))
fillet3.Radius = 5

doc.recompute()
